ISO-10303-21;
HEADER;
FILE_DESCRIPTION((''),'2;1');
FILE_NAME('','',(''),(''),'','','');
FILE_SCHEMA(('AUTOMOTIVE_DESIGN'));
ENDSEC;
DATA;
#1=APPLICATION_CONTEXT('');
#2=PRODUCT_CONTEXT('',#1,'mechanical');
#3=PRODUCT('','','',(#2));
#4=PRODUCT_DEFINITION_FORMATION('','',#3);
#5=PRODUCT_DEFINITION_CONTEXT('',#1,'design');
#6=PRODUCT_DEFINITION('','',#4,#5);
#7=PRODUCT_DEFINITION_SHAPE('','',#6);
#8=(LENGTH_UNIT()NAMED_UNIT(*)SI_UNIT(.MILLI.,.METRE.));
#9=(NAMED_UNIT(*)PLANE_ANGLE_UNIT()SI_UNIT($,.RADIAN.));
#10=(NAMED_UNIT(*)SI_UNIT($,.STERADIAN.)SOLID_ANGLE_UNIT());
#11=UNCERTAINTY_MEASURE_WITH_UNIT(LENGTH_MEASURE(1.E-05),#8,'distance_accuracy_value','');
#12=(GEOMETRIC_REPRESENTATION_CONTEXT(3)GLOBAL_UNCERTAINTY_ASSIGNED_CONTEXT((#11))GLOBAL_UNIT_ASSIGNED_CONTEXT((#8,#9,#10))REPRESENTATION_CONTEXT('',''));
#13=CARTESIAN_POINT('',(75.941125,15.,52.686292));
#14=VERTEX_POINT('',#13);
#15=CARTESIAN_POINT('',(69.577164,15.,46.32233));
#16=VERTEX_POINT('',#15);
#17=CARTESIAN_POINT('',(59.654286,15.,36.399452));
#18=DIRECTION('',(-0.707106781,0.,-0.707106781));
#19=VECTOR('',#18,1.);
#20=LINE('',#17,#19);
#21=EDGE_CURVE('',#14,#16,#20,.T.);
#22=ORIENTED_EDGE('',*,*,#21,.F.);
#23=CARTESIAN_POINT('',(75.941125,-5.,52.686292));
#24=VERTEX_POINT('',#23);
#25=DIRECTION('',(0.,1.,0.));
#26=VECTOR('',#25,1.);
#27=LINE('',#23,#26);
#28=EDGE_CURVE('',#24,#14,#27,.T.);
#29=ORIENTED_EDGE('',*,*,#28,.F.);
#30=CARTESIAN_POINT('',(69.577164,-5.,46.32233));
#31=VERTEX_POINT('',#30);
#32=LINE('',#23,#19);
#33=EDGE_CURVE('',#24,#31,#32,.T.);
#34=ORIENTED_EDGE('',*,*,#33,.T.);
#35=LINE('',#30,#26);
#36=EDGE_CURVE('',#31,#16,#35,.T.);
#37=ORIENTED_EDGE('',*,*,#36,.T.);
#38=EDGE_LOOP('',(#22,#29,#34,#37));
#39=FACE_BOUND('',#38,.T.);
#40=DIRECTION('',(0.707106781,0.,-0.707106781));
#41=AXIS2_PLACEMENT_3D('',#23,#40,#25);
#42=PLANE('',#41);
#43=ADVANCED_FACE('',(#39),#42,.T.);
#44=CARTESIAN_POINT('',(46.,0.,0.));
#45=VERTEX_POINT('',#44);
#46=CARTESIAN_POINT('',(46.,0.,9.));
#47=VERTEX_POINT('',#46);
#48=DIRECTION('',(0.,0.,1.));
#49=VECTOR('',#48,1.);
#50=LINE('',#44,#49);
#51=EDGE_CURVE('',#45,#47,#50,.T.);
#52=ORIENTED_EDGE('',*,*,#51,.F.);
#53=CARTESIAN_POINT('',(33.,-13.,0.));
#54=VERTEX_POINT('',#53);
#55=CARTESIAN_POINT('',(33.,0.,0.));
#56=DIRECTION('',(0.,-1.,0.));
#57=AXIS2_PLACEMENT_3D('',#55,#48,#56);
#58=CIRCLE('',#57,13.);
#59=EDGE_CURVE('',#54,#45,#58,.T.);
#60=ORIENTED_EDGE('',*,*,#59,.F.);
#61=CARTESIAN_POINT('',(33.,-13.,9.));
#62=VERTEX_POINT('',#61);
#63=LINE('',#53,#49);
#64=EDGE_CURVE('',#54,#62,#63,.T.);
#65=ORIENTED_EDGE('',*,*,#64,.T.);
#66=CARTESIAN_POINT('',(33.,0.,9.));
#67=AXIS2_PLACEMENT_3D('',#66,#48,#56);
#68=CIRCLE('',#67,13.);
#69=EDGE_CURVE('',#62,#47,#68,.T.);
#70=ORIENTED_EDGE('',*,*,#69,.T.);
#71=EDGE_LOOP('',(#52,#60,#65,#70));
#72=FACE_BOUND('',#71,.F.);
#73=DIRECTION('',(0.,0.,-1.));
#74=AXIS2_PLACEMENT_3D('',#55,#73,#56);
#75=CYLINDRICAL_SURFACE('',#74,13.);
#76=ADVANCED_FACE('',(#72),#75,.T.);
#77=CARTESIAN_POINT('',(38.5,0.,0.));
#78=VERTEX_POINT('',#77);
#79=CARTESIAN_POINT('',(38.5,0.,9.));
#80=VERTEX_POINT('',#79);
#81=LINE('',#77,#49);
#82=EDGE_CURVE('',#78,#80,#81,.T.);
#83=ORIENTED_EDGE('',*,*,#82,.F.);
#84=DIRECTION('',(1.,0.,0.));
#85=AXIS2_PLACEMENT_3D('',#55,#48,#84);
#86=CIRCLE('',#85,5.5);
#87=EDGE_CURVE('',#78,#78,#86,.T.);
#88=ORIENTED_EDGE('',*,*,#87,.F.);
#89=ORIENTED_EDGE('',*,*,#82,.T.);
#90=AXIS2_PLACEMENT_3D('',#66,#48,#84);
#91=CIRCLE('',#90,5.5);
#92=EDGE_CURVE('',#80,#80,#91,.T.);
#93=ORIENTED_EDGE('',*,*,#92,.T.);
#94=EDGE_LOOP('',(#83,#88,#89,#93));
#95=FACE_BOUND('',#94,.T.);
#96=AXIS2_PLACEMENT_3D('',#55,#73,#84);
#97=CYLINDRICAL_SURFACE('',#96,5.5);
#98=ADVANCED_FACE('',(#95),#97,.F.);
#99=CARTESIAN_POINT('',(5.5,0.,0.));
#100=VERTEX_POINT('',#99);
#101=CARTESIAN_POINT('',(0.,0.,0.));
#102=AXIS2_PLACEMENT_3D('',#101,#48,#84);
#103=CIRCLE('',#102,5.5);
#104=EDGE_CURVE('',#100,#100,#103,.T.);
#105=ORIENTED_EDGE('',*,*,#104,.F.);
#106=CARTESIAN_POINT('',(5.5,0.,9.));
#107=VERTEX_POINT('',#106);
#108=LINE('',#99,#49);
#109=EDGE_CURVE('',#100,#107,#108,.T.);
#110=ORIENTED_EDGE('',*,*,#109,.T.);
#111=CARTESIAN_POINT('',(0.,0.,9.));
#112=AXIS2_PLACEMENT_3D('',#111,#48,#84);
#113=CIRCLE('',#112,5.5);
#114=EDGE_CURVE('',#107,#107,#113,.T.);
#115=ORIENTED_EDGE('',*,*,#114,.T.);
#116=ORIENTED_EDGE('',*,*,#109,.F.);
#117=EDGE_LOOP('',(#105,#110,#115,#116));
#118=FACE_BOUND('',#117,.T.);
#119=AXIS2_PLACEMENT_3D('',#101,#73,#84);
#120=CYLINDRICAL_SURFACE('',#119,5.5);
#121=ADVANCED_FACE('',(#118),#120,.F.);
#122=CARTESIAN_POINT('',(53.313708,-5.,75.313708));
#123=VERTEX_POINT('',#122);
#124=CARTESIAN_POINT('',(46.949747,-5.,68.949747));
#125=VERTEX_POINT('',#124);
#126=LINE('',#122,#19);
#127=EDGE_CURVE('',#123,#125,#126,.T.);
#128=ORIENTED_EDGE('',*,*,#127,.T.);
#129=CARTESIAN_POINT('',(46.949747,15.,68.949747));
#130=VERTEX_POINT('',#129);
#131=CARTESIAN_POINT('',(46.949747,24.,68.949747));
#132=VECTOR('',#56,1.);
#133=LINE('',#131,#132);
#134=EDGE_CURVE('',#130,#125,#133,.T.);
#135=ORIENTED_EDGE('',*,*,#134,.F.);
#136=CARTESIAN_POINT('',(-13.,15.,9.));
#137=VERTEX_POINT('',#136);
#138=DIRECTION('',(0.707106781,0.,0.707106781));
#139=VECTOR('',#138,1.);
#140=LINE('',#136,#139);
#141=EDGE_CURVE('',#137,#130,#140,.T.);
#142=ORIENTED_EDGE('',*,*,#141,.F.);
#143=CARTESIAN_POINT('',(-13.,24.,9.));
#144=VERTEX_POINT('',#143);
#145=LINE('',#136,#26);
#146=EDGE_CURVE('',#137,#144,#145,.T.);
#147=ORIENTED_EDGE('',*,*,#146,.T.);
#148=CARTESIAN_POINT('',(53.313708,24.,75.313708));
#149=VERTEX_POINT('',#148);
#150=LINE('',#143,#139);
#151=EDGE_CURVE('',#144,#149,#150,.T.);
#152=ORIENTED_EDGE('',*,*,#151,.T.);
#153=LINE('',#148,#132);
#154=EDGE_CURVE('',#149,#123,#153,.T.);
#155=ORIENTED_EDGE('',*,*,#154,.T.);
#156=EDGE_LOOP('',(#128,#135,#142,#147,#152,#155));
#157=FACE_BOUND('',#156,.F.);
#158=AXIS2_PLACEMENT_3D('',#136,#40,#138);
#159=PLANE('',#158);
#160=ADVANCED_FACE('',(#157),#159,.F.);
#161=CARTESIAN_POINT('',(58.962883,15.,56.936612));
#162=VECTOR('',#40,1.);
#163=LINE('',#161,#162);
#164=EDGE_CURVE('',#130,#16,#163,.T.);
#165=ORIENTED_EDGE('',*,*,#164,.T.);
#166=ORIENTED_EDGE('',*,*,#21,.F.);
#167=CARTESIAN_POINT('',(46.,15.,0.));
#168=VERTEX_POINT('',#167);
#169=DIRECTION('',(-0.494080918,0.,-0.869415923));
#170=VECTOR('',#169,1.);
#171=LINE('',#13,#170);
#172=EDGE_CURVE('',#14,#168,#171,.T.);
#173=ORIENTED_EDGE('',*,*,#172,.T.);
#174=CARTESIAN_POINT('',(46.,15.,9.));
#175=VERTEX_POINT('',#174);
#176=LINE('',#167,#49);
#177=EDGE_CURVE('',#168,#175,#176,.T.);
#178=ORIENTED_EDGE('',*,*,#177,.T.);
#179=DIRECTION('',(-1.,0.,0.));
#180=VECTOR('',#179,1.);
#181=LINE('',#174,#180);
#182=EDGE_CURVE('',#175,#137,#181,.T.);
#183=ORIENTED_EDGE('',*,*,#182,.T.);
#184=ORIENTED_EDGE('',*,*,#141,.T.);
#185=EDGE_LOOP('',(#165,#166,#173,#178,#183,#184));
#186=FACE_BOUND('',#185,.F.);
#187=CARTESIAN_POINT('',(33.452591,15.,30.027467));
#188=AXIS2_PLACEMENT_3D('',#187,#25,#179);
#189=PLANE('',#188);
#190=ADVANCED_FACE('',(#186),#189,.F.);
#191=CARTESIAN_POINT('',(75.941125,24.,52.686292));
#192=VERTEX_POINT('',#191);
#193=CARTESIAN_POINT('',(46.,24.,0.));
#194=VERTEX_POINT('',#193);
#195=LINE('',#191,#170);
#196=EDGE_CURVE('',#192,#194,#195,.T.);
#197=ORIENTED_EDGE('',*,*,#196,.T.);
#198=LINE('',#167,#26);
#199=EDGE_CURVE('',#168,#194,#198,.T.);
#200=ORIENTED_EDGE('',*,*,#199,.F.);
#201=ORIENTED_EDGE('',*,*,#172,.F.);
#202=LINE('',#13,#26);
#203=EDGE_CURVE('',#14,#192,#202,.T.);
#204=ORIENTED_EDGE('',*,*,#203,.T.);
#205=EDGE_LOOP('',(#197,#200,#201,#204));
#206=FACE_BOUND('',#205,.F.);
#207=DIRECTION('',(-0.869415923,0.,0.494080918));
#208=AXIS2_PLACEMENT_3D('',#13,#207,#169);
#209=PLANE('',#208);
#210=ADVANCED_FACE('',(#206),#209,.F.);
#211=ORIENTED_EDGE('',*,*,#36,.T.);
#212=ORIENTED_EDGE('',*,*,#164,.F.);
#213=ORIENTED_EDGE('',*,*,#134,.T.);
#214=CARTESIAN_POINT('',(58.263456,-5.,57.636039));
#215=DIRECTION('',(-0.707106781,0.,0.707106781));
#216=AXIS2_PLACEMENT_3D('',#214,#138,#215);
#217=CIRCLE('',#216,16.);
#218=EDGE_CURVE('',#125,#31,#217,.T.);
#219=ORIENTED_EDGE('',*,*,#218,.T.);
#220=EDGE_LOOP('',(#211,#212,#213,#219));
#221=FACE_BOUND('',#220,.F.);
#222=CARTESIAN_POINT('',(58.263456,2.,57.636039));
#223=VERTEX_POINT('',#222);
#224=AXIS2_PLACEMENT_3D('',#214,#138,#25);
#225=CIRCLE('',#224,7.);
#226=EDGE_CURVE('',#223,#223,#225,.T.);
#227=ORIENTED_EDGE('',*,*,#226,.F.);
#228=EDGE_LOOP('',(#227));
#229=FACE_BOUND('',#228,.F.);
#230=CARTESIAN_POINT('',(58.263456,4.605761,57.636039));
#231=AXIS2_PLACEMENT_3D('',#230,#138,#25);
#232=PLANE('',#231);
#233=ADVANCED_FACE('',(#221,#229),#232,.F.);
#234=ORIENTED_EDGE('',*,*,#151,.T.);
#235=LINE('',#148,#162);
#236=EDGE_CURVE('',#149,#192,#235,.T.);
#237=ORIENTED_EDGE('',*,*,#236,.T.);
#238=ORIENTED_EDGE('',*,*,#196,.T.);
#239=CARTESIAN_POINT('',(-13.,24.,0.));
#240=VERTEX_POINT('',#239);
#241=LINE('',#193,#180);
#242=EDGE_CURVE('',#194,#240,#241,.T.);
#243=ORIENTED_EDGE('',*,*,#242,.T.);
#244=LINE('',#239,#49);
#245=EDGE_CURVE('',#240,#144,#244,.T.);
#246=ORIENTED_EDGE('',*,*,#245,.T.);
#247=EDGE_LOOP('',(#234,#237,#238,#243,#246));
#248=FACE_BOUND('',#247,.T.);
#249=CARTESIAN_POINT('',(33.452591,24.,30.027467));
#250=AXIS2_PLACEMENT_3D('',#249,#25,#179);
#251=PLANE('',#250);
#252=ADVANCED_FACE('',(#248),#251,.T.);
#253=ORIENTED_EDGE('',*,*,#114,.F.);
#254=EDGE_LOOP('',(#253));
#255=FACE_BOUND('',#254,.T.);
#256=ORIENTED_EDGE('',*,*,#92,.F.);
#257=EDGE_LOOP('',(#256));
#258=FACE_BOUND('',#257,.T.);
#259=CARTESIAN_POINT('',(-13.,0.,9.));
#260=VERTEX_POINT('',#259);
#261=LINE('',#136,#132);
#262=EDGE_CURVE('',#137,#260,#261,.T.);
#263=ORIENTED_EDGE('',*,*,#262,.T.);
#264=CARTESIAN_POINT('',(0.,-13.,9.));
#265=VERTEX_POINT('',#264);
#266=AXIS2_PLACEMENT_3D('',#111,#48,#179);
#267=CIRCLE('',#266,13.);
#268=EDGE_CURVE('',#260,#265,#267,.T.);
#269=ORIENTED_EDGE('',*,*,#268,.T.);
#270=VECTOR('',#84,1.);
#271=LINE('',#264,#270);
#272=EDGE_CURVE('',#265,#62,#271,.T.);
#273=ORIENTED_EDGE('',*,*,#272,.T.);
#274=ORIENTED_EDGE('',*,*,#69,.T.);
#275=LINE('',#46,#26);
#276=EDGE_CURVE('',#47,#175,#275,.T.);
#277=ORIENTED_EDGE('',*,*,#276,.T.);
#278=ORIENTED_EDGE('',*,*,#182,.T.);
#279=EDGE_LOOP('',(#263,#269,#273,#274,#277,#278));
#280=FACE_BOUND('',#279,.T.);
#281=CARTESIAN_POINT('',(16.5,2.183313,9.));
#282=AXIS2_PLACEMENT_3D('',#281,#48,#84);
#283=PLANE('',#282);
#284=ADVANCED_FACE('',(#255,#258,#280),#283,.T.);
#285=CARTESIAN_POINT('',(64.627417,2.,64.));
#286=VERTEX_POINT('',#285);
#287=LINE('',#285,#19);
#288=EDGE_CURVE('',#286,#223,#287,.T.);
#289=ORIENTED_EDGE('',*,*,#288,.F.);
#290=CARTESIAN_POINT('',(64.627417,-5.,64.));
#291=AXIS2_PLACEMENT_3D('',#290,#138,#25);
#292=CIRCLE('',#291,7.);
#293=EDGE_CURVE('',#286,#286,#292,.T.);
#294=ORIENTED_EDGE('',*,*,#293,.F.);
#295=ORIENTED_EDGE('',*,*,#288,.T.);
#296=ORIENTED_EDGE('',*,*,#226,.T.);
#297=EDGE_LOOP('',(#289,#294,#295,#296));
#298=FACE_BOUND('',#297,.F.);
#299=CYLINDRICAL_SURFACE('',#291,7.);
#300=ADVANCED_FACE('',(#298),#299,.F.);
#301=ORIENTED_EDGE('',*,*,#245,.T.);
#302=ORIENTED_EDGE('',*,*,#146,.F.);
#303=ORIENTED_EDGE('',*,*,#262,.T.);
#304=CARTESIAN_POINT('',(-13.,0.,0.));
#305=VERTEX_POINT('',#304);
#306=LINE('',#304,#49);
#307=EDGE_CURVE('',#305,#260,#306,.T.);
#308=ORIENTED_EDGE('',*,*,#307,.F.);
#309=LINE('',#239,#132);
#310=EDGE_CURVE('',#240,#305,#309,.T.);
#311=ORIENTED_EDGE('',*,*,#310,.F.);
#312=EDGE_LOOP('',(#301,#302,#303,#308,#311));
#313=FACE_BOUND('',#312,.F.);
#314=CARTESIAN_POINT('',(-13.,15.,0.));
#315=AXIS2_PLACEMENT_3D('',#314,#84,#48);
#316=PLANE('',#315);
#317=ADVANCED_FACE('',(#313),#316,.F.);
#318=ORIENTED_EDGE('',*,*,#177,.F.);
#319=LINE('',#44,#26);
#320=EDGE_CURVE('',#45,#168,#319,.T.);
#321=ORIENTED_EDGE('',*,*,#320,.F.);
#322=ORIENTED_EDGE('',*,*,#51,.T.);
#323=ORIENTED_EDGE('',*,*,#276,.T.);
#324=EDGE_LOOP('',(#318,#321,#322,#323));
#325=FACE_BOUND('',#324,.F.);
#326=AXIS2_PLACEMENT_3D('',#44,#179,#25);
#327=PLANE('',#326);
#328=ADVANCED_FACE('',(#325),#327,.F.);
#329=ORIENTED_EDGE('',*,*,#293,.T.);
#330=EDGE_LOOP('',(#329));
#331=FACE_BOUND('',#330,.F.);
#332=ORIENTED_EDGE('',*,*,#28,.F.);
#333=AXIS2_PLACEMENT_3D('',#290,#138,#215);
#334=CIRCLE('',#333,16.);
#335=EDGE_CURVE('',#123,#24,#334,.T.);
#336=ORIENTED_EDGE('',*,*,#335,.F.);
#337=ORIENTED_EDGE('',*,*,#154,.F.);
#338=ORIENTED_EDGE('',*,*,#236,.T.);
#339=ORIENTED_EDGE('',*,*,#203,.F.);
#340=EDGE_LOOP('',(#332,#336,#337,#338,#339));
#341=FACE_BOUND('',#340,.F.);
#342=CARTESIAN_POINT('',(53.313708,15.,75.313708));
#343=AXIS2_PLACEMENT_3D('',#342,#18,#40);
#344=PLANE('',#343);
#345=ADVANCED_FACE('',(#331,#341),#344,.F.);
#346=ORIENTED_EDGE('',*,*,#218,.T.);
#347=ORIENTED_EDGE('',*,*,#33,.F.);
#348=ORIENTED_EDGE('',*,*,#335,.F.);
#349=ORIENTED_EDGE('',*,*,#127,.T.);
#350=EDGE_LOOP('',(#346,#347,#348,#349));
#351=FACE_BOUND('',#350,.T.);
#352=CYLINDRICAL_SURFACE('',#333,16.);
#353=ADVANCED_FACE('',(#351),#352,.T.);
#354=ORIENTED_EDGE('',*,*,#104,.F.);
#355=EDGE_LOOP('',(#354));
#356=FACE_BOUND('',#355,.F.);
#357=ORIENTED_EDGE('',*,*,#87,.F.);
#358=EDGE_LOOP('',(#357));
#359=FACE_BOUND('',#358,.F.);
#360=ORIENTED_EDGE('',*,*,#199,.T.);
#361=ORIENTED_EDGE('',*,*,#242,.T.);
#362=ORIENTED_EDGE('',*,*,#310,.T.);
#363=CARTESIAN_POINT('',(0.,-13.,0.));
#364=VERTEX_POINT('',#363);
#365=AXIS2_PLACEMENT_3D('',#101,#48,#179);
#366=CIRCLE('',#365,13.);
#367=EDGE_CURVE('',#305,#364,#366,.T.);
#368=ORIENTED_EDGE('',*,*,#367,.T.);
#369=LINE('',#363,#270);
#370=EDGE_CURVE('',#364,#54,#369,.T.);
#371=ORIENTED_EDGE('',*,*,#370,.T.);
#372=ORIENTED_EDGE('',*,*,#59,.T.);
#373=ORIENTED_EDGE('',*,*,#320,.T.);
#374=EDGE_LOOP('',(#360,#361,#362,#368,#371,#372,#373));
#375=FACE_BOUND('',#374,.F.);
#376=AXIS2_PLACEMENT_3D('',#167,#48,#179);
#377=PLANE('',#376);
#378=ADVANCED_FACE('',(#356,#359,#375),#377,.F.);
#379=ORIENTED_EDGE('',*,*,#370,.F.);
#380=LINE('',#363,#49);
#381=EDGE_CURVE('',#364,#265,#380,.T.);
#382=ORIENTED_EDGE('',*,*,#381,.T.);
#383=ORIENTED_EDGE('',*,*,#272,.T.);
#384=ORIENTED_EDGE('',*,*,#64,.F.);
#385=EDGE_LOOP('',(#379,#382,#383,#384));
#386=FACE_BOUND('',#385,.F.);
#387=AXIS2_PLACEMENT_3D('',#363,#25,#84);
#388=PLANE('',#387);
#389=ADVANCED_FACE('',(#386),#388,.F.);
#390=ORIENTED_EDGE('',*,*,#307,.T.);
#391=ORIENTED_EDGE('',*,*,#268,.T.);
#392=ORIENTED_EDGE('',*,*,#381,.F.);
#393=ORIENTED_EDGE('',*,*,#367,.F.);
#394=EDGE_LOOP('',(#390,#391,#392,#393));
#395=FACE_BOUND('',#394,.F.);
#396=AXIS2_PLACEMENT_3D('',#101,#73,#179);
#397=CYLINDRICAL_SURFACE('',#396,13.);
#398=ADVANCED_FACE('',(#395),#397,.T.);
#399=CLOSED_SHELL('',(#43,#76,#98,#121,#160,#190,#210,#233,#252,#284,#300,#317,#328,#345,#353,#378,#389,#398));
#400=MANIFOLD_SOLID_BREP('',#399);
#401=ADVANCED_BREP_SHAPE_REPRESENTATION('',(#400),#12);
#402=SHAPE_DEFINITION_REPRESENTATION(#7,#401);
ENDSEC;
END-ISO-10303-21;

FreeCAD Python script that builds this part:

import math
import FreeCAD as App
import Part
import Sketcher
from FreeCAD import Vector
Q = App.Units.Quantity


def add_polygon(sketch, points):
    """Adds a closed chain of lines whose ends are joined by coincident constraints."""
    first, n = sketch.GeometryCount, len(points)
    for a, b in zip(points, points[1:] + points[:1]):
        sketch.addGeometry(Part.LineSegment(App.Vector(*a, 0), App.Vector(*b, 0)), False)
    for i in range(n):
        sketch.addConstraint(Sketcher.Constraint("Coincident", first + i, 2, first + (i + 1) % n, 1))

doc = App.newDocument("Part")
params = doc.addObject("Spreadsheet::Sheet", "Params")
for row, (alias, value) in enumerate([
    ("sketch1_diameter", "11 mm"),
    ("sketch1_radius", "13 mm"),
    ("sketch1_width", "59 mm"),
    ("sketch1_height", "15 mm"),
    ("pad1_length", "9 mm"),
    ("sketch2_width", "59 mm"),
    ("sketch2_height", "9 mm"),
    ("sketch2_length", "32 mm"),
    ("pad2_length", "9 mm"),
    ("sketch3_diameter", "14 mm"),
    ("sketch3_radius", "16 mm"),
    ("sketch3_width", "29 mm"),
    ("pad3_length", "9 mm"),
], start=1):
    params.set(f"A{row}", alias)
    params.set(f"B{row}", "=" + value)
    params.setAlias(f"B{row}", alias)

body = doc.addObject("PartDesign::Body", "Body")

sketch1 = body.newObject("Sketcher::SketchObject", "Sketch")
sketch1.AttachmentSupport = (doc.getObject("XY_Plane"), [""])
sketch1.MapMode = "FlatFace"
sketch1.addGeometry(Part.LineSegment(Vector(46, 0, 0), Vector(46, 15, 0)), False)
sketch1.addGeometry(Part.LineSegment(Vector(46, 15, 0), Vector(-13, 15, 0)), False)
sketch1.addGeometry(Part.LineSegment(Vector(-13, 15, 0), Vector(-13, 0, 0)), False)
sketch1.addGeometry(Part.ArcOfCircle(Part.Circle(Vector(0, 0, 0), Vector(0, 0, 1), 13), math.radians(180), math.radians(270)), False)
sketch1.addGeometry(Part.LineSegment(Vector(0, -13, 0), Vector(33, -13, 0)), False)
sketch1.addGeometry(Part.ArcOfCircle(Part.Circle(Vector(33, 0, 0), Vector(0, 0, 1), 13), math.radians(-90), math.radians(0)), False)
sketch1.addGeometry(Part.Circle(Vector(0, 0, 0), Vector(0, 0, 1), 6), False)
sketch1.addGeometry(Part.Circle(Vector(33, 0, 0), Vector(0, 0, 1), 6), False)
sketch1.addConstraint(Sketcher.Constraint("Coincident", 0, 2, 1, 1))
sketch1.addConstraint(Sketcher.Constraint("Coincident", 1, 2, 2, 1))
sketch1.addConstraint(Sketcher.Constraint("Tangent", 2, 2, 3, 1))
sketch1.addConstraint(Sketcher.Constraint("Tangent", 3, 2, 4, 1))
sketch1.addConstraint(Sketcher.Constraint("Tangent", 4, 2, 5, 1))
sketch1.addConstraint(Sketcher.Constraint("Tangent", 5, 2, 0, 1))
sketch1.addConstraint(Sketcher.Constraint("Vertical", 0))
sketch1.addConstraint(Sketcher.Constraint("Horizontal", 1))
sketch1.addConstraint(Sketcher.Constraint("Vertical", 2))
sketch1.addConstraint(Sketcher.Constraint("Horizontal", 4))
sketch1.addConstraint(Sketcher.Constraint("Coincident", 3, 3, -1, 1))
sketch1.addConstraint(Sketcher.Constraint("Coincident", 6, 3, -1, 1))
sketch1.addConstraint(Sketcher.Constraint("Coincident", 7, 3, 5, 3))
sketch1.addConstraint(Sketcher.Constraint("Equal", 3, 5))
sketch1.addConstraint(Sketcher.Constraint("Equal", 6, 7))
sketch1.addConstraint(Sketcher.Constraint("Diameter", 6, Q("11 mm")))
sketch1.addConstraint(Sketcher.Constraint("Radius", 3, Q("13 mm")))
sketch1.addConstraint(Sketcher.Constraint("DistanceX", 1, 2, 1, 1, Q("59 mm")))
sketch1.addConstraint(Sketcher.Constraint("DistanceY", 0, 1, 0, 2, Q("15 mm")))
sketch1.setExpression("Constraints[15]", "Params.sketch1_diameter")
sketch1.setExpression("Constraints[16]", "Params.sketch1_radius")
sketch1.setExpression("Constraints[17]", "Params.sketch1_width")
sketch1.setExpression("Constraints[18]", "Params.sketch1_height")
pad1 = body.newObject("PartDesign::Pad", "Pad")
pad1.Profile = sketch1
pad1.setExpression("Length", "Params.pad1_length")

sketch2 = body.newObject("Sketcher::SketchObject", "Sketch001")
sketch2.AttachmentSupport = (doc.getObject("XZ_Plane"), [""])
sketch2.MapMode = "FlatFace"
sketch2.AttachmentOffset = App.Placement(Vector(0, 0, -15), App.Rotation())
add_polygon(sketch2, [(-13, 0), (-13, 9), (53, 75), (76, 53), (46, 0)])
sketch2.addConstraint(Sketcher.Constraint("Vertical", 0))
sketch2.addConstraint(Sketcher.Constraint("Horizontal", 4))
sketch2.addConstraint(Sketcher.Constraint("PointOnObject", 3, 2, -1))
sketch2.addConstraint(Sketcher.Constraint("Perpendicular", 1, 2))
sketch2.addConstraint(Sketcher.Constraint("DistanceX", 4, 2, 4, 1, Q("59 mm")))
sketch2.addConstraint(Sketcher.Constraint("DistanceY", 0, 1, 0, 2, Q("9 mm")))
sketch2.addConstraint(Sketcher.Constraint("Angle", 1, Q("45 deg")))
sketch2.addConstraint(Sketcher.Constraint("Distance", 2, Q("32 mm")))
sketch2.addConstraint(Sketcher.Constraint("DistanceX", 0, 2, -1, 1, Q("13 mm")))
sketch2.addConstraint(Sketcher.Constraint("Distance", 3, Q("60.59964 mm")))
sketch2.setExpression("Constraints[9]", "Params.sketch2_width")
sketch2.setExpression("Constraints[10]", "Params.sketch2_height")
sketch2.setExpression("Constraints[12]", "Params.sketch2_length")
pad2 = body.newObject("PartDesign::Pad", "Pad001")
pad2.Profile = sketch2
pad2.setExpression("Length", "Params.pad2_length")
pad2.Reversed = True

sketch3 = body.newObject("Sketcher::SketchObject", "Sketch002")
sketch3.Placement = App.Placement(Vector(64.313708, 0, 64.313708), App.Rotation(Vector(0, 1, 0), Vector(-0.707106781, 0, 0.707106781), Vector(0.707106781, 0, 0.707106781), "ZXY"))
sketch3.addGeometry(Part.LineSegment(Vector(24, -16, 0), Vector(24, 16, 0)), False)
sketch3.addGeometry(Part.LineSegment(Vector(24, 16, 0), Vector(-5, 16, 0)), False)
sketch3.addGeometry(Part.ArcOfCircle(Part.Circle(Vector(-5, 0, 0), Vector(0, 0, 1), 16), math.radians(90), math.radians(270)), False)
sketch3.addGeometry(Part.LineSegment(Vector(-5, -16, 0), Vector(24, -16, 0)), False)
sketch3.addGeometry(Part.Circle(Vector(-5, 0, 0), Vector(0, 0, 1), 7), False)
sketch3.addConstraint(Sketcher.Constraint("Coincident", 0, 2, 1, 1))
sketch3.addConstraint(Sketcher.Constraint("Tangent", 1, 2, 2, 1))
sketch3.addConstraint(Sketcher.Constraint("Tangent", 2, 2, 3, 1))
sketch3.addConstraint(Sketcher.Constraint("Coincident", 3, 2, 0, 1))
sketch3.addConstraint(Sketcher.Constraint("Vertical", 0))
sketch3.addConstraint(Sketcher.Constraint("Horizontal", 1))
sketch3.addConstraint(Sketcher.Constraint("Horizontal", 3))
sketch3.addConstraint(Sketcher.Constraint("Coincident", 4, 3, 2, 3))
sketch3.addConstraint(Sketcher.Constraint("Diameter", 4, Q("14 mm")))
sketch3.addConstraint(Sketcher.Constraint("Radius", 2, Q("16 mm")))
sketch3.addConstraint(Sketcher.Constraint("DistanceX", 1, 2, 1, 1, Q("29 mm")))
sketch3.addConstraint(Sketcher.Constraint("DistanceX", 2, 3, -1, 1, Q("5 mm")))
sketch3.addConstraint(Sketcher.Constraint("DistanceY", 2, 3, -1, 1, Q("0.443651 mm")))
sketch3.setExpression("Constraints[8]", "Params.sketch3_diameter")
sketch3.setExpression("Constraints[9]", "Params.sketch3_radius")
sketch3.setExpression("Constraints[10]", "Params.sketch3_width")
pad3 = body.newObject("PartDesign::Pad", "Pad002")
pad3.Profile = sketch3
pad3.setExpression("Length", "Params.pad3_length")
pad3.Reversed = True

doc.recompute()
